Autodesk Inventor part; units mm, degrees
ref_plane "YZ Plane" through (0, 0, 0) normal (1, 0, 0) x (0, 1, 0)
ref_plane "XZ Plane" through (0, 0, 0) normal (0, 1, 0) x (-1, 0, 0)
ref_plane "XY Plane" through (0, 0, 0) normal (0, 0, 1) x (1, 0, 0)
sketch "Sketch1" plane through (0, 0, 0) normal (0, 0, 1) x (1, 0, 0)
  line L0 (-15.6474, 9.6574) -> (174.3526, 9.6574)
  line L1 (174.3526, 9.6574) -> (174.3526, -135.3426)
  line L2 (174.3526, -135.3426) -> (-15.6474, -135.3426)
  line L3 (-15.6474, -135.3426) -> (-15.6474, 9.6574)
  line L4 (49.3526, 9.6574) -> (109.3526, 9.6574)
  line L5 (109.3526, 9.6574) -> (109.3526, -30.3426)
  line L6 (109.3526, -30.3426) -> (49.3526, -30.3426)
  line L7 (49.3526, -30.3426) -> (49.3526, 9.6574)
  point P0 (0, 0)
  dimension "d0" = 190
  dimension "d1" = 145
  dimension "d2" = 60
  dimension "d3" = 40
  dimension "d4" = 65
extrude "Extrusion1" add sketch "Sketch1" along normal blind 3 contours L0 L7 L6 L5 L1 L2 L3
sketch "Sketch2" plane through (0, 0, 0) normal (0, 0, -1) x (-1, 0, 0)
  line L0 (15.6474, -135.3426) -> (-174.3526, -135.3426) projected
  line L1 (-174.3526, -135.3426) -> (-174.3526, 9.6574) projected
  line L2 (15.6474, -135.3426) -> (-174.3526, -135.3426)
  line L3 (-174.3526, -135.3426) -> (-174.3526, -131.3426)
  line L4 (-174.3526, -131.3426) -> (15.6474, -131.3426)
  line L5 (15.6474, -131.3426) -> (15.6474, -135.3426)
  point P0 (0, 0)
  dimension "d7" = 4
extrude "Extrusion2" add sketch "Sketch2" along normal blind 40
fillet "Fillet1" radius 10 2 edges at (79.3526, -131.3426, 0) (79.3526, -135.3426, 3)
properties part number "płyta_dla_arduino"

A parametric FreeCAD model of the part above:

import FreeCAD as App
import Part
import Sketcher
from FreeCAD import Vector


def edges_at(feature, points):
    """Names of the edges that pass closest to the given points."""
    edges = feature.Shape.Edges
    near = lambda p: min(range(len(edges)), key=lambda i: edges[i].distToShape(Part.Vertex(*p))[0])
    return sorted({f"Edge{near(p) + 1}" for p in points})

doc = App.newDocument("Part")
params = doc.addObject("Spreadsheet::Sheet", "Params")
for row, (alias, value) in enumerate([
    ("sketch1_width", "65 mm"),
    ("sketch1_width2", "190 mm"),
    ("sketch1_height", "145 mm"),
    ("sketch1_height2", "40 mm"),
    ("pad1_length", "3 mm"),
    ("sketch2_height", "4 mm"),
    ("sketch2_width", "190 mm"),
    ("pad2_length", "40 mm"),
    ("fillet_radius", "10 mm"),
], start=1):
    params.set(f"A{row}", alias)
    params.set(f"B{row}", "=" + value)
    params.setAlias(f"B{row}", alias)

body = doc.addObject("PartDesign::Body", "Body")

# Sketch on XY plane
sketch1 = body.newObject("Sketcher::SketchObject", "Sketch")
sketch1.AttachmentSupport = (doc.getObject("XY_Plane"), [""])
sketch1.MapMode = "FlatFace"
sketch1.addGeometry([
    Part.LineSegment(Vector(49.3526, 9.6574, 0), Vector(-15.6474, 9.6574, 0)),  # 0
    Part.LineSegment(Vector(-15.6474, 9.6574, 0), Vector(-15.6474, -135.3426, 0)),  # 1
    Part.LineSegment(Vector(-15.6474, -135.3426, 0), Vector(174.3526, -135.3426, 0)),  # 2
    Part.LineSegment(Vector(174.3526, -135.3426, 0), Vector(174.3526, 9.6574, 0)),  # 3
    Part.LineSegment(Vector(174.3526, 9.6574, 0), Vector(109.3526, 9.6574, 0)),  # 4
    Part.LineSegment(Vector(109.3526, 9.6574, 0), Vector(109.3526, -30.3426, 0)),  # 5
    Part.LineSegment(Vector(109.3526, -30.3426, 0), Vector(49.3526, -30.3426, 0)),  # 6
    Part.LineSegment(Vector(49.3526, -30.3426, 0), Vector(49.3526, 9.6574, 0)),  # 7
], False)
sketch1.addConstraint([
    Sketcher.Constraint("Coincident", 0, 2, 1, 1),
    Sketcher.Constraint("Coincident", 1, 2, 2, 1),
    Sketcher.Constraint("Coincident", 2, 2, 3, 1),
    Sketcher.Constraint("Coincident", 3, 2, 4, 1),
    Sketcher.Constraint("Coincident", 4, 2, 5, 1),
    Sketcher.Constraint("Coincident", 5, 2, 6, 1),
    Sketcher.Constraint("Coincident", 6, 2, 7, 1),
    Sketcher.Constraint("Coincident", 7, 2, 0, 1),
    Sketcher.Constraint("Horizontal", 0),
    Sketcher.Constraint("Vertical", 1),
    Sketcher.Constraint("Horizontal", 2),
    Sketcher.Constraint("Vertical", 3),
    Sketcher.Constraint("Horizontal", 4),
    Sketcher.Constraint("Vertical", 5),
    Sketcher.Constraint("Horizontal", 6),
    Sketcher.Constraint("Vertical", 7),
    Sketcher.Constraint("Horizontal", 0, 2, 3, 2),
    Sketcher.Constraint("Equal", 0, 4),
    Sketcher.Constraint("DistanceX", 0, 2, 0, 1, 65.0),
    Sketcher.Constraint("DistanceX", 2, 1, 2, 2, 190.0),
    Sketcher.Constraint("DistanceY", 1, 2, 1, 1, 145.0),
    Sketcher.Constraint("DistanceY", 5, 2, 5, 1, 40.0),
    Sketcher.Constraint("DistanceX", 0, 2, -1, 1, 15.6474),
    Sketcher.Constraint("DistanceY", -1, 1, 0, 2, 9.6574),
])
sketch1.setExpression("Constraints[18]", "Params.sketch1_width")
sketch1.setExpression("Constraints[19]", "Params.sketch1_width2")
sketch1.setExpression("Constraints[20]", "Params.sketch1_height")
sketch1.setExpression("Constraints[21]", "Params.sketch1_height2")
pad1 = body.newObject("PartDesign::Pad", "Pad")
pad1.Profile = sketch1
pad1.setExpression("Length", "Params.pad1_length")

# Sketch on XY plane
sketch2 = body.newObject("Sketcher::SketchObject", "Sketch001")
sketch2.AttachmentSupport = (doc.getObject("XY_Plane"), [""])
sketch2.MapMode = "FlatFace"
sketch2.addGeometry([
    Part.LineSegment(Vector(174.3526, -135.3426, 0), Vector(-15.6474, -135.3426, 0)),
    Part.LineSegment(Vector(-15.6474, -135.3426, 0), Vector(-15.6474, -131.3426, 0)),
    Part.LineSegment(Vector(-15.6474, -131.3426, 0), Vector(174.3526, -131.3426, 0)),
    Part.LineSegment(Vector(174.3526, -131.3426, 0), Vector(174.3526, -135.3426, 0)),
], False)
sketch2.addConstraint([
    Sketcher.Constraint("Coincident", 0, 2, 1, 1),
    Sketcher.Constraint("Coincident", 1, 2, 2, 1),
    Sketcher.Constraint("Coincident", 2, 2, 3, 1),
    Sketcher.Constraint("Coincident", 3, 2, 0, 1),
    Sketcher.Constraint("Horizontal", 0),
    Sketcher.Constraint("Vertical", 1),
    Sketcher.Constraint("Horizontal", 2),
    Sketcher.Constraint("Vertical", 3),
    Sketcher.Constraint("DistanceY", 1, 1, 1, 2, 4.0),
    Sketcher.Constraint("DistanceX", 0, 2, 0, 1, 190.0),
    Sketcher.Constraint("DistanceX", 0, 2, -1, 1, 15.6474),
    Sketcher.Constraint("DistanceY", 0, 2, -1, 1, 135.3426),
])
sketch2.setExpression("Constraints[8]", "Params.sketch2_height")
sketch2.setExpression("Constraints[9]", "Params.sketch2_width")
pad2 = body.newObject("PartDesign::Pad", "Pad001")
pad2.Profile = sketch2
pad2.setExpression("Length", "Params.pad2_length")
pad2.Reversed = True
doc.recompute()

fillet = body.newObject("PartDesign::Fillet", "Fillet")
fillet.Base = (pad2, edges_at(pad2, [(79.353, -131.343, 0), (79.353, -135.343, 3)]))
fillet.setExpression("Radius", "Params.fillet_radius")

doc.recompute()
